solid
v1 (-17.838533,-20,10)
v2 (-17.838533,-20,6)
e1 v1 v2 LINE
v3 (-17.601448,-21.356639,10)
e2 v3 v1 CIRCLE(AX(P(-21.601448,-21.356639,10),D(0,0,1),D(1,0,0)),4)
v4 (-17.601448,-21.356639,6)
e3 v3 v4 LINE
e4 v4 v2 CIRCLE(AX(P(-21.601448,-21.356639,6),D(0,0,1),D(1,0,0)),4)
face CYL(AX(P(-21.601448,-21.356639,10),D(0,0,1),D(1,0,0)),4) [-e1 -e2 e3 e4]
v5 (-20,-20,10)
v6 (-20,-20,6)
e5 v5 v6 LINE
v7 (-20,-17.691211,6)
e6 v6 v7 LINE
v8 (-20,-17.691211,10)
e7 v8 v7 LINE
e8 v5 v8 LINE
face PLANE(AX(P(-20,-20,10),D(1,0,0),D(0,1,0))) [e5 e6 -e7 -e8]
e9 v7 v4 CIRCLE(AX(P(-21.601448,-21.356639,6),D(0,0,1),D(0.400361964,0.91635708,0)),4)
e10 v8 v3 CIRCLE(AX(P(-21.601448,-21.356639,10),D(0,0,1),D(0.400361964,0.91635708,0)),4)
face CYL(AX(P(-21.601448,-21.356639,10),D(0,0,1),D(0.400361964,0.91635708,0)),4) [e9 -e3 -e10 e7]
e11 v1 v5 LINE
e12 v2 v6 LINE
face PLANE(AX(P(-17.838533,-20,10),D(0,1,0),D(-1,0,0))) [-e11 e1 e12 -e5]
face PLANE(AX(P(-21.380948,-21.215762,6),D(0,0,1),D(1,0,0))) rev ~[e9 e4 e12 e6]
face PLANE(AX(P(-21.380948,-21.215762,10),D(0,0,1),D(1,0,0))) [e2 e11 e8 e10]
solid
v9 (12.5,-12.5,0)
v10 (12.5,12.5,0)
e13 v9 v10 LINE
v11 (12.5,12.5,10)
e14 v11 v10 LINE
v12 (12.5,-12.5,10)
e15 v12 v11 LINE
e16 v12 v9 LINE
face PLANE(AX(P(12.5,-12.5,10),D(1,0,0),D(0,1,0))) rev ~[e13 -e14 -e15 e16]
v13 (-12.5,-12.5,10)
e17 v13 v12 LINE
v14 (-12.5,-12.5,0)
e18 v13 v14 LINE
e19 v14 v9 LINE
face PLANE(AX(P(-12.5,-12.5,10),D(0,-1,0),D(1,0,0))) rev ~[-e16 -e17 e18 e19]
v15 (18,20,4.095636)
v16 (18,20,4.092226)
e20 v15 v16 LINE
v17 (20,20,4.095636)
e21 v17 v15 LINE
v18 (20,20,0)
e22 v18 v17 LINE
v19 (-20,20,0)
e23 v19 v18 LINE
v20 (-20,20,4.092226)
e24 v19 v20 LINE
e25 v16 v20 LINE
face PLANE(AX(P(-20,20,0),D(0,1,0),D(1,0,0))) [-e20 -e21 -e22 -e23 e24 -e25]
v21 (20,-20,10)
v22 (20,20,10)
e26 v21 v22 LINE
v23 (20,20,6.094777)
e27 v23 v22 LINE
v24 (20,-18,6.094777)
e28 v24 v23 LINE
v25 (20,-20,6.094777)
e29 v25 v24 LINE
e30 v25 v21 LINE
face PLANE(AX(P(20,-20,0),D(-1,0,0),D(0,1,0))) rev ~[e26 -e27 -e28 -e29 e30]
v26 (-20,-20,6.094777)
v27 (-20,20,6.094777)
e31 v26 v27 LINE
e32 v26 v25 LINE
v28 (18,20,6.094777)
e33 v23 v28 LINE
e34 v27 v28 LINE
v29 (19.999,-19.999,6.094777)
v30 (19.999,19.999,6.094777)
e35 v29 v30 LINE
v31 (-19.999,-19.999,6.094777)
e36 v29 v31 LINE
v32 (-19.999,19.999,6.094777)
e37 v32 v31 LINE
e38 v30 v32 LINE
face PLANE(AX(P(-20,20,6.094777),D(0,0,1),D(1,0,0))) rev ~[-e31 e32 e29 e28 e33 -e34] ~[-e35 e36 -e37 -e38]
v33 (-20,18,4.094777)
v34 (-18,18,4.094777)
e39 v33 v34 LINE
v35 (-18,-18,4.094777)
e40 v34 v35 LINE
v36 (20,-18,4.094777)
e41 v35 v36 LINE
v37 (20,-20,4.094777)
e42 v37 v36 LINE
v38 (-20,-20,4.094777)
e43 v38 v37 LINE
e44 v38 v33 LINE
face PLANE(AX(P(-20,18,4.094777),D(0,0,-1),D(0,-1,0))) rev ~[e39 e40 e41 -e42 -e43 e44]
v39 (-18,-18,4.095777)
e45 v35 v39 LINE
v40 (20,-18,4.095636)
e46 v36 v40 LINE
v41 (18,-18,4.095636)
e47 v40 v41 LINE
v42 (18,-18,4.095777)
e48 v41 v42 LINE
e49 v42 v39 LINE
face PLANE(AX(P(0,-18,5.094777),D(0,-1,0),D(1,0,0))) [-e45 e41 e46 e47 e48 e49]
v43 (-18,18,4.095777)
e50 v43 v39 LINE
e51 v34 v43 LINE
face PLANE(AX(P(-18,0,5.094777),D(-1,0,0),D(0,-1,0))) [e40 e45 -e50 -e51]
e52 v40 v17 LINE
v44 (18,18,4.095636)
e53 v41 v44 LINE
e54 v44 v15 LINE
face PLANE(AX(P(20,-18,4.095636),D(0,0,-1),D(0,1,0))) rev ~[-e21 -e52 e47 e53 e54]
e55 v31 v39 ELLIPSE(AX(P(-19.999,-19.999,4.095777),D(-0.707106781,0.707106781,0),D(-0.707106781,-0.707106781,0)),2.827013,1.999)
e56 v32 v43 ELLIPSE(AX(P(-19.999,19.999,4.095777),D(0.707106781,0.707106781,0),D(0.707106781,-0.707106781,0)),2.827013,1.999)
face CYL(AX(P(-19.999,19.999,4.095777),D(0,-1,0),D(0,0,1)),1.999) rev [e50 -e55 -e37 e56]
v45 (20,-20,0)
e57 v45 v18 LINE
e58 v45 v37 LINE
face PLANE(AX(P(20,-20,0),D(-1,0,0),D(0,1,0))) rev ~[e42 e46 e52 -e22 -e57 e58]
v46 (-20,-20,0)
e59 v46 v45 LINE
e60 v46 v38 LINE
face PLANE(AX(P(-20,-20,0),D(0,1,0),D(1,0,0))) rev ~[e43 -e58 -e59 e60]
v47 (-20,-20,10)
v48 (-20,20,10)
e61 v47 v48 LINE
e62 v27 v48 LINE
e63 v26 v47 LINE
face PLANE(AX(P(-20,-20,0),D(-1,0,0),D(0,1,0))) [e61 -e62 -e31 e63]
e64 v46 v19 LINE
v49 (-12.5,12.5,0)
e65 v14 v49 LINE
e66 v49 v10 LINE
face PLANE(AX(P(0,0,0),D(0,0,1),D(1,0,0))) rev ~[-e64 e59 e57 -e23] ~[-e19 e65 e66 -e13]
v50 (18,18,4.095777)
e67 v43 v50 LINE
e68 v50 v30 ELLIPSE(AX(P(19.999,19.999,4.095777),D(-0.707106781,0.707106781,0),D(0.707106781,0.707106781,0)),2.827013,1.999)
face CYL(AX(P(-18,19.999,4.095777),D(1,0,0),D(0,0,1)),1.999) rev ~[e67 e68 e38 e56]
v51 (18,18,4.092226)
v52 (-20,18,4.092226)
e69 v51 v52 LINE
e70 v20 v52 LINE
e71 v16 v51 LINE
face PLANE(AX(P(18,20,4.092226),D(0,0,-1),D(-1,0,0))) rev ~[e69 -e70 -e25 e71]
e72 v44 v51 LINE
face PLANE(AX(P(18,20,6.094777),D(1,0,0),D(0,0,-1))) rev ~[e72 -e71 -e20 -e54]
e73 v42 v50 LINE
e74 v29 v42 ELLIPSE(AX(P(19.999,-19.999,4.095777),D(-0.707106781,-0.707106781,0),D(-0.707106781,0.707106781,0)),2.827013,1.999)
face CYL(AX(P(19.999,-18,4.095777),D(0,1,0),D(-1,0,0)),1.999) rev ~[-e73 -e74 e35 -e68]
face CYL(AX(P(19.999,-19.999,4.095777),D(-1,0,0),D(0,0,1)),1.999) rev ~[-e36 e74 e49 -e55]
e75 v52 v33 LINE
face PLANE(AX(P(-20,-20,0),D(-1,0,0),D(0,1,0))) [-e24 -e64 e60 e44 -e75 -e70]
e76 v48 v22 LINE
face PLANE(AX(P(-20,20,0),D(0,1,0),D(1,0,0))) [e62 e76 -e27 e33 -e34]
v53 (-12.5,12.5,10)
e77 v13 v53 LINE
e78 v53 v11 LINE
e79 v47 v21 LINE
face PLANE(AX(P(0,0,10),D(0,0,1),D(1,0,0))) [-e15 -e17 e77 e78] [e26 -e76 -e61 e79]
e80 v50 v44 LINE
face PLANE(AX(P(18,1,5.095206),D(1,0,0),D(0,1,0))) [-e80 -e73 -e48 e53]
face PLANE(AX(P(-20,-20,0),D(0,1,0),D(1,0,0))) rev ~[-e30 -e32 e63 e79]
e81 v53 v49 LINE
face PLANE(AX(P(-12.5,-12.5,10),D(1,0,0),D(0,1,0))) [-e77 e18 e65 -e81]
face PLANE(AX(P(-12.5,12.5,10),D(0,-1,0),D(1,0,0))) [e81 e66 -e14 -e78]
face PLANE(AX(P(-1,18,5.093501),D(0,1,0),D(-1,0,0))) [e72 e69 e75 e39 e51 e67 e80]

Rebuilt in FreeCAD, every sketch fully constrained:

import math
import FreeCAD as App
import Part
import Sketcher

V = App.Vector


def edges_at(feature, points):
    """Names of the edges that pass closest to the given points."""
    edges = feature.Shape.Edges
    near = lambda p: min(range(len(edges)), key=lambda i: edges[i].distToShape(Part.Vertex(*p))[0])
    return sorted({f"Edge{near(p) + 1}" for p in points})


def add_polygon(sketch, points):
    """Adds a closed chain of lines whose ends are joined by coincident constraints."""
    first, n = sketch.GeometryCount, len(points)
    for a, b in zip(points, points[1:] + points[:1]):
        sketch.addGeometry(Part.LineSegment(App.Vector(*a, 0), App.Vector(*b, 0)), False)
    for i in range(n):
        sketch.addConstraint(Sketcher.Constraint("Coincident", first + i, 2, first + (i + 1) % n, 1))

doc = App.newDocument("Part")
body = doc.addObject("PartDesign::Body", "Body")

# Sketch on XY plane
sketch1 = body.newObject("Sketcher::SketchObject", "Sketch")
sketch1.AttachmentSupport = (doc.getObject("XY_Plane"), [""])
sketch1.MapMode = "FlatFace"
add_polygon(sketch1, [(-20, 20), (-20, -20), (20, -20), (20, 20)])  # lines 0-3
sketch1.addConstraint([
    Sketcher.Constraint("Vertical", 0),
    Sketcher.Constraint("Horizontal", 1),
    Sketcher.Constraint("Vertical", 2),
    Sketcher.Constraint("Horizontal", 3),
    Sketcher.Constraint("Symmetric", 0, 2, 2, 2, -1, 1),
    Sketcher.Constraint("Equal", 3, 0),
    Sketcher.Constraint("DistanceX", 1, 1, 1, 2, 40.0),
])
pad1 = body.newObject("PartDesign::Pad", "Pad")
pad1.Profile = sketch1
pad1.Length = 10

# Sketch on XY plane
sketch2 = body.newObject("Sketcher::SketchObject", "Sketch001")
sketch2.AttachmentSupport = (doc.getObject("XY_Plane"), [""])
sketch2.MapMode = "FlatFace"
sketch2.AttachmentOffset = App.Placement(V(0, 0, 10), App.Rotation())
add_polygon(sketch2, [(-12, 12), (-12, -12), (12, -12), (12, 12)])  # lines 0-3
sketch2.addConstraint([
    Sketcher.Constraint("Vertical", 0),
    Sketcher.Constraint("Horizontal", 1),
    Sketcher.Constraint("Vertical", 2),
    Sketcher.Constraint("Horizontal", 3),
    Sketcher.Constraint("Symmetric", 0, 2, 2, 2, -1, 1),
    Sketcher.Constraint("Equal", 3, 0),
    Sketcher.Constraint("DistanceX", 1, 1, 1, 2, 25.0),
])
pocket1 = body.newObject("PartDesign::Pocket", "Pocket")
pocket1.Profile = sketch2
pocket1.Length = 10

# Sketch on XZ plane
sketch3 = body.newObject("Sketcher::SketchObject", "Sketch002")
sketch3.AttachmentSupport = (doc.getObject("XZ_Plane"), [""])
sketch3.MapMode = "FlatFace"
sketch3.AttachmentOffset = App.Placement(V(0, 0, 20), App.Rotation())
add_polygon(sketch3, [(-20, 6.1), (-20, 4.1), (20, 4.1), (20, 6.1)])  # lines 0-3
sketch3.addConstraint([
    Sketcher.Constraint("Vertical", 0),
    Sketcher.Constraint("Horizontal", 1),
    Sketcher.Constraint("Vertical", 2),
    Sketcher.Constraint("Horizontal", 3),
    Sketcher.Constraint("DistanceX", 1, 1, 1, 2, 40.0),
    Sketcher.Constraint("DistanceY", 0, 2, 0, 1, 2.0),
    Sketcher.Constraint("DistanceX", 0, 2, -1, 1, 20.0),
    Sketcher.Constraint("DistanceY", -1, 1, 0, 2, 4.094777),
])
pocket2 = body.newObject("PartDesign::Pocket", "Pocket001")
pocket2.Profile = sketch3
pocket2.Length = 2

# Sketch on YZ plane
sketch4 = body.newObject("Sketcher::SketchObject", "Sketch003")
sketch4.AttachmentSupport = (doc.getObject("YZ_Plane"), [""])
sketch4.MapMode = "FlatFace"
sketch4.AttachmentOffset = App.Placement(V(0, 0, 20), App.Rotation())
add_polygon(sketch4, [(-18, 6.1), (-18, 4.1), (20, 4.1), (20, 6.1)])  # lines 0-3
sketch4.addConstraint([
    Sketcher.Constraint("Vertical", 0),
    Sketcher.Constraint("Horizontal", 1),
    Sketcher.Constraint("Vertical", 2),
    Sketcher.Constraint("Horizontal", 3),
    Sketcher.Constraint("DistanceX", 1, 1, 1, 2, 38.0),
    Sketcher.Constraint("DistanceX", 0, 2, -1, 1, 18.0),
    Sketcher.Constraint("DistanceY", 0, 2, 0, 1, 1.999141),
    Sketcher.Constraint("DistanceY", -1, 1, 0, 2, 4.095636),
])
pocket3 = body.newObject("PartDesign::Pocket", "Pocket002")
pocket3.Profile = sketch4
pocket3.Length = 2

# Sketch on XZ plane
sketch5 = body.newObject("Sketcher::SketchObject", "Sketch004")
sketch5.AttachmentSupport = (doc.getObject("XZ_Plane"), [""])
sketch5.MapMode = "FlatFace"
sketch5.AttachmentOffset = App.Placement(V(0, 0, -20), App.Rotation())
add_polygon(sketch5, [(-20, 6.1), (18, 6.1), (18, 4.1), (-20, 4.1)])  # lines 0-3
sketch5.addConstraint([
    Sketcher.Constraint("Horizontal", 0),
    Sketcher.Constraint("Vertical", 1),
    Sketcher.Constraint("Horizontal", 2),
    Sketcher.Constraint("Vertical", 3),
    Sketcher.Constraint("DistanceX", 0, 1, 0, 2, 38.0),
    Sketcher.Constraint("DistanceX", -1, 1, 0, 2, 18.0),
    Sketcher.Constraint("DistanceY", 1, 2, 1, 1, 2.002551),
    Sketcher.Constraint("DistanceY", -1, 1, 0, 2, 6.094777),
])
pocket4 = body.newObject("PartDesign::Pocket", "Pocket003")
pocket4.Profile = sketch5
pocket4.Length = 2
pocket4.Reversed = True

# Sketch on YZ plane
sketch6 = body.newObject("Sketcher::SketchObject", "Sketch005")
sketch6.AttachmentSupport = (doc.getObject("YZ_Plane"), [""])
sketch6.MapMode = "FlatFace"
sketch6.AttachmentOffset = App.Placement(V(0, 0, -20), App.Rotation())
add_polygon(sketch6, [(18, 6.1), (18, 4.1), (-18, 4.1), (-18, 6.1)])  # lines 0-3
sketch6.addConstraint([
    Sketcher.Constraint("Vertical", 0),
    Sketcher.Constraint("Horizontal", 1),
    Sketcher.Constraint("Vertical", 2),
    Sketcher.Constraint("Horizontal", 3),
    Sketcher.Constraint("DistanceX", 1, 2, 1, 1, 36.0),
    Sketcher.Constraint("DistanceY", 0, 2, 0, 1, 2.0),
    Sketcher.Constraint("DistanceX", -1, 1, 0, 2, 18.0),
    Sketcher.Constraint("DistanceY", -1, 1, 0, 2, 4.094777),
])
pocket5 = body.newObject("PartDesign::Pocket", "Pocket004")
pocket5.Profile = sketch6
pocket5.Length = 2
pocket5.Reversed = True
doc.recompute()

fillet = body.newObject("PartDesign::Fillet", "Fillet")
fillet.Base = (pocket5, edges_at(pocket5, [(18, 0, 6.095), (0, 18, 6.095)]))
fillet.Radius = 1.999
doc.recompute()

fillet2 = body.newObject("PartDesign::Fillet", "Fillet001")
fillet2.Base = (fillet, edges_at(fillet, [(1, -18, 6.095), (-18, 1, 6.095)]))
fillet2.Radius = 1.999
body2 = doc.addObject("PartDesign::Body", "Body001")

# Sketch on XY plane
sketch7 = body2.newObject("Sketcher::SketchObject", "Sketch006")
sketch7.AttachmentSupport = (doc.getObject("XY_Plane001"), [""])
sketch7.MapMode = "FlatFace"
sketch7.AttachmentOffset = App.Placement(V(0, 0, 10), App.Rotation())
sketch7.addGeometry([
    Part.ArcOfCircle(Part.Circle(V(-21.6, -21.4, 0), V(0, 0, 1), 4), math.radians(66), math.radians(360)),
    Part.ArcOfCircle(Part.Circle(V(-21.6, -21.4, 0), V(0, 0, 1), 4), math.radians(0), math.radians(19.83)),
    Part.LineSegment(V(-17.8, -20, 0), V(-20, -20, 0)),
    Part.LineSegment(V(-20, -20, 0), V(-20, -17.7, 0)),
], False)
sketch7.addConstraint([
    Sketcher.Constraint("Tangent", 0, 2, 1, 1),
    Sketcher.Constraint("Coincident", 1, 2, 2, 1),
    Sketcher.Constraint("Coincident", 2, 2, 3, 1),
    Sketcher.Constraint("Coincident", 3, 2, 0, 1),
    Sketcher.Constraint("Horizontal", 2),
    Sketcher.Constraint("Vertical", 3),
    Sketcher.Constraint("Equal", 0, 1),
    Sketcher.Constraint("Horizontal", 1, 3, 0, 2),
    Sketcher.Constraint("Radius", 0, 4.0),
    Sketcher.Constraint("DistanceY", 1, 2, -1, 1, 20.0),
    Sketcher.Constraint("DistanceX", 2, 2, -1, 1, 20.0),
    Sketcher.Constraint("DistanceY", 3, 1, 3, 2, 2.308789),
    Sketcher.Constraint("DistanceX", 2, 2, 2, 1, 2.161467),
])
pad2 = body2.newObject("PartDesign::Pad", "Pad001")
pad2.Profile = sketch7
pad2.Length = 4
pad2.Reversed = True

doc.recompute()
